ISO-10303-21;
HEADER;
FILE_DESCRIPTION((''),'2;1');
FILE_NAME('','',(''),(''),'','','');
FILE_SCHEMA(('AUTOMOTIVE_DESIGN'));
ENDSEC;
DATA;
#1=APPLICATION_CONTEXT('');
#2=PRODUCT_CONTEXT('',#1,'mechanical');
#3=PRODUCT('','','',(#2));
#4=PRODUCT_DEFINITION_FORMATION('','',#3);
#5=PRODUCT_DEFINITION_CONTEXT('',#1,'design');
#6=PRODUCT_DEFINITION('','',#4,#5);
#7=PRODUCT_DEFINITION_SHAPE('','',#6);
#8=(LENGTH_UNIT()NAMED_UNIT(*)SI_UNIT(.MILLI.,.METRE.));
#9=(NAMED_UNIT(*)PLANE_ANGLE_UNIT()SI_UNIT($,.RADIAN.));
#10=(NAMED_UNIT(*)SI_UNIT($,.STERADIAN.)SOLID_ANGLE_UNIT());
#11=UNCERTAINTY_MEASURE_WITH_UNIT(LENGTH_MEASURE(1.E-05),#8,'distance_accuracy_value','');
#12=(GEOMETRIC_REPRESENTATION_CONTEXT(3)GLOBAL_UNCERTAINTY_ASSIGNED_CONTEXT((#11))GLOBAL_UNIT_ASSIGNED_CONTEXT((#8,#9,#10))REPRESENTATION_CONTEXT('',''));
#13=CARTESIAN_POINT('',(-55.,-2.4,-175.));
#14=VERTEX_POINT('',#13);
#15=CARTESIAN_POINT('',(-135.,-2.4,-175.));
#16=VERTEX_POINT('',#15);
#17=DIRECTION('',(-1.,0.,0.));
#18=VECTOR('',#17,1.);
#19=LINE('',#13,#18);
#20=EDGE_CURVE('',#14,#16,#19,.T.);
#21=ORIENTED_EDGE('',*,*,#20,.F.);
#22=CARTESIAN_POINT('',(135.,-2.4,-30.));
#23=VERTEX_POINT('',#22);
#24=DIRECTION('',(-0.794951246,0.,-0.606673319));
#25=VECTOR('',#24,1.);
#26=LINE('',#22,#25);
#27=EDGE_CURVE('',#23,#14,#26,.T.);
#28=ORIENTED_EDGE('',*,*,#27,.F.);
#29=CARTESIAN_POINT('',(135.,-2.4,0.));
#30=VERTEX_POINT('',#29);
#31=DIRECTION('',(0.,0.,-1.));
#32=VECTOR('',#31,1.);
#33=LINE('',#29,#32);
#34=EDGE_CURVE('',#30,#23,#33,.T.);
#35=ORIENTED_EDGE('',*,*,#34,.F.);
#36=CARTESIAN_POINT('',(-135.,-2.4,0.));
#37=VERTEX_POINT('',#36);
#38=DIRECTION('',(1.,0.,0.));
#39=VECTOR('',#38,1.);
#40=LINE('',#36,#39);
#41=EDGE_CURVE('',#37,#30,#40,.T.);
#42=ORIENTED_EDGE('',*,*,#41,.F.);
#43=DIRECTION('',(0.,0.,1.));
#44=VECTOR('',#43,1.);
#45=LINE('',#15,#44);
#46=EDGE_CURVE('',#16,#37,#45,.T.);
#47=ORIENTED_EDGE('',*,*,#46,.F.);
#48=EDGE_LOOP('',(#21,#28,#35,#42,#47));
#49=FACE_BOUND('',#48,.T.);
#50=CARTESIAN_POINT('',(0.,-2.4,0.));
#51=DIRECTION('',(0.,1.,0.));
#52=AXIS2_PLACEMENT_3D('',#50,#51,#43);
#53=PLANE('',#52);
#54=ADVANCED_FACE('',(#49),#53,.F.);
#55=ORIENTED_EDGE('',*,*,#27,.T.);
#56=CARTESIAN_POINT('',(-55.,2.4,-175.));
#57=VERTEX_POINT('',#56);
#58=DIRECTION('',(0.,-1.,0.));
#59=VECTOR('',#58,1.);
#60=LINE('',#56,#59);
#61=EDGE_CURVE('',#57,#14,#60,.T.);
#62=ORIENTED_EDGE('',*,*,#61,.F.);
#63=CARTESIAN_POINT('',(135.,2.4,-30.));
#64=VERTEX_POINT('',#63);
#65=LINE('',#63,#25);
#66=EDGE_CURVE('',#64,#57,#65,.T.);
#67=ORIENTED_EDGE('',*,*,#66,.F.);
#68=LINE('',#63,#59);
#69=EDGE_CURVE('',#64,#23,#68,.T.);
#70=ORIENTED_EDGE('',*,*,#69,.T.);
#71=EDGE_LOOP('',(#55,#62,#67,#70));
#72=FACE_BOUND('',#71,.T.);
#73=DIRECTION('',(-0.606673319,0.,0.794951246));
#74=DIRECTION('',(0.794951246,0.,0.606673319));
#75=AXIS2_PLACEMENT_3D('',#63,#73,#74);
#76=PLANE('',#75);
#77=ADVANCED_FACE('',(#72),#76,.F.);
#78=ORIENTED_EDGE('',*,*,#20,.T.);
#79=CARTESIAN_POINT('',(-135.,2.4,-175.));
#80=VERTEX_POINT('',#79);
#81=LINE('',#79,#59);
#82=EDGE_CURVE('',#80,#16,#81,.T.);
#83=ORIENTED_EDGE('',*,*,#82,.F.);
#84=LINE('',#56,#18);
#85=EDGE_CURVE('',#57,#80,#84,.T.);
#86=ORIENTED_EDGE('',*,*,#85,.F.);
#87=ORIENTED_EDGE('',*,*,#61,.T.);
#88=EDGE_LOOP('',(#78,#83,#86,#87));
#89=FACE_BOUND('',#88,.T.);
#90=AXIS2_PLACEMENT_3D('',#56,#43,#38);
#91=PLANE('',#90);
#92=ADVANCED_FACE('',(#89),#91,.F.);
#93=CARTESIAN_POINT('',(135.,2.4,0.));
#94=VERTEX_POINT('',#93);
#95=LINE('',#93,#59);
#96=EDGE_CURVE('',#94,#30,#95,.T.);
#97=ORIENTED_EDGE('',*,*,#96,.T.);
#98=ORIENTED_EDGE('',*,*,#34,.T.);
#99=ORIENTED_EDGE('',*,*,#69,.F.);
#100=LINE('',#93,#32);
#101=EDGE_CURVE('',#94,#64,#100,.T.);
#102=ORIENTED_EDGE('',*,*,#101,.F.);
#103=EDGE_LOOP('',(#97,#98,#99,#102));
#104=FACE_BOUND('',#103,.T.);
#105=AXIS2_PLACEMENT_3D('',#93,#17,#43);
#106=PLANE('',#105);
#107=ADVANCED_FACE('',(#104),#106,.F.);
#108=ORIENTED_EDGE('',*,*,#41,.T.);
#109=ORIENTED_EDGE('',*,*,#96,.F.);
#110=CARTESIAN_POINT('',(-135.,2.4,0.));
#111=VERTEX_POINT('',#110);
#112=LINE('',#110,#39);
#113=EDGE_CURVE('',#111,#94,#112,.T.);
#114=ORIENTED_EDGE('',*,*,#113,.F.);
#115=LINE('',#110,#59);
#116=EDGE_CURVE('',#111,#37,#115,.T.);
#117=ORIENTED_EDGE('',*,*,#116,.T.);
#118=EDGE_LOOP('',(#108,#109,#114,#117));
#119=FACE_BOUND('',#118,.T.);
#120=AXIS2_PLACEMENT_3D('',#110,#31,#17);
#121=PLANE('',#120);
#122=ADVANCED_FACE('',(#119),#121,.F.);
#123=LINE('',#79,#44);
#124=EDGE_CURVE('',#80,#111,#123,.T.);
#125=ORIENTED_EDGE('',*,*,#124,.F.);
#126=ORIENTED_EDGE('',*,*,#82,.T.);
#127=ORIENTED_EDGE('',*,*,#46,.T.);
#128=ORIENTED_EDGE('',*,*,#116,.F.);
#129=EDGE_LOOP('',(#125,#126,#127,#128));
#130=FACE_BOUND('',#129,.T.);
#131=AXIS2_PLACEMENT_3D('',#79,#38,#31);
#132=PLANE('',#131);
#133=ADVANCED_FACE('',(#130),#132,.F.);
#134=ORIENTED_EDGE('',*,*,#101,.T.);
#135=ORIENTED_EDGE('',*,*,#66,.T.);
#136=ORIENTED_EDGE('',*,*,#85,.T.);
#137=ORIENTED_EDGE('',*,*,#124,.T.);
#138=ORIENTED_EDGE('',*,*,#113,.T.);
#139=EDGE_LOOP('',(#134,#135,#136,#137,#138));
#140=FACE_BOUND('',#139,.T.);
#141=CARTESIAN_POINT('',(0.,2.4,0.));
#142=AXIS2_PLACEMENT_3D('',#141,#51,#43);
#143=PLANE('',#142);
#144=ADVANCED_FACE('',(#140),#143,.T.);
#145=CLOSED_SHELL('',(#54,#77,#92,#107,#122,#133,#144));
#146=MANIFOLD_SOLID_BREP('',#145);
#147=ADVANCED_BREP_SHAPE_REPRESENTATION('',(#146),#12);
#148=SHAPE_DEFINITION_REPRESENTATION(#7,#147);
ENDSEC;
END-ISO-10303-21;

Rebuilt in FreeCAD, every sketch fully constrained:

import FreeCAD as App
import Part
import Sketcher

V = App.Vector
Q = App.Units.Quantity


def add_polygon(sketch, points):
    """Adds a closed chain of lines whose ends are joined by coincident constraints."""
    first, n = sketch.GeometryCount, len(points)
    for a, b in zip(points, points[1:] + points[:1]):
        sketch.addGeometry(Part.LineSegment(App.Vector(*a, 0), App.Vector(*b, 0)), False)
    for i in range(n):
        sketch.addConstraint(Sketcher.Constraint("Coincident", first + i, 2, first + (i + 1) % n, 1))

doc = App.newDocument("Part")
body = doc.addObject("PartDesign::Body", "Body")

# Sketch on XZ plane
sketch1 = body.newObject("Sketcher::SketchObject", "Sketch")
sketch1.AttachmentSupport = (doc.getObject("XZ_Plane"), [""])
sketch1.MapMode = "FlatFace"
add_polygon(sketch1, [(-135, -175), (-135, 0), (135, 0), (135, -30), (-55, -175)])  # lines 0-4
sketch1.addConstraint(Sketcher.Constraint("Vertical", 0))
sketch1.addConstraint(Sketcher.Constraint("Horizontal", 1))
sketch1.addConstraint(Sketcher.Constraint("Vertical", 2))
sketch1.addConstraint(Sketcher.Constraint("Horizontal", 4))
sketch1.addConstraint(Sketcher.Constraint("Symmetric", 0, 2, 1, 2, -1, 1))
sketch1.addConstraint(Sketcher.Constraint("DistanceX", 1, 1, 1, 2, Q("270 mm")))
sketch1.addConstraint(Sketcher.Constraint("DistanceX", 4, 2, 4, 1, Q("80 mm")))
sketch1.addConstraint(Sketcher.Constraint("DistanceY", 0, 1, 0, 2, Q("175 mm")))
sketch1.addConstraint(Sketcher.Constraint("DistanceY", 2, 2, 2, 1, Q("30 mm")))
pad1 = body.newObject("PartDesign::Pad", "Pad")
pad1.Profile = sketch1
pad1.Length = 4.8
pad1.Midplane = True

doc.recompute()
